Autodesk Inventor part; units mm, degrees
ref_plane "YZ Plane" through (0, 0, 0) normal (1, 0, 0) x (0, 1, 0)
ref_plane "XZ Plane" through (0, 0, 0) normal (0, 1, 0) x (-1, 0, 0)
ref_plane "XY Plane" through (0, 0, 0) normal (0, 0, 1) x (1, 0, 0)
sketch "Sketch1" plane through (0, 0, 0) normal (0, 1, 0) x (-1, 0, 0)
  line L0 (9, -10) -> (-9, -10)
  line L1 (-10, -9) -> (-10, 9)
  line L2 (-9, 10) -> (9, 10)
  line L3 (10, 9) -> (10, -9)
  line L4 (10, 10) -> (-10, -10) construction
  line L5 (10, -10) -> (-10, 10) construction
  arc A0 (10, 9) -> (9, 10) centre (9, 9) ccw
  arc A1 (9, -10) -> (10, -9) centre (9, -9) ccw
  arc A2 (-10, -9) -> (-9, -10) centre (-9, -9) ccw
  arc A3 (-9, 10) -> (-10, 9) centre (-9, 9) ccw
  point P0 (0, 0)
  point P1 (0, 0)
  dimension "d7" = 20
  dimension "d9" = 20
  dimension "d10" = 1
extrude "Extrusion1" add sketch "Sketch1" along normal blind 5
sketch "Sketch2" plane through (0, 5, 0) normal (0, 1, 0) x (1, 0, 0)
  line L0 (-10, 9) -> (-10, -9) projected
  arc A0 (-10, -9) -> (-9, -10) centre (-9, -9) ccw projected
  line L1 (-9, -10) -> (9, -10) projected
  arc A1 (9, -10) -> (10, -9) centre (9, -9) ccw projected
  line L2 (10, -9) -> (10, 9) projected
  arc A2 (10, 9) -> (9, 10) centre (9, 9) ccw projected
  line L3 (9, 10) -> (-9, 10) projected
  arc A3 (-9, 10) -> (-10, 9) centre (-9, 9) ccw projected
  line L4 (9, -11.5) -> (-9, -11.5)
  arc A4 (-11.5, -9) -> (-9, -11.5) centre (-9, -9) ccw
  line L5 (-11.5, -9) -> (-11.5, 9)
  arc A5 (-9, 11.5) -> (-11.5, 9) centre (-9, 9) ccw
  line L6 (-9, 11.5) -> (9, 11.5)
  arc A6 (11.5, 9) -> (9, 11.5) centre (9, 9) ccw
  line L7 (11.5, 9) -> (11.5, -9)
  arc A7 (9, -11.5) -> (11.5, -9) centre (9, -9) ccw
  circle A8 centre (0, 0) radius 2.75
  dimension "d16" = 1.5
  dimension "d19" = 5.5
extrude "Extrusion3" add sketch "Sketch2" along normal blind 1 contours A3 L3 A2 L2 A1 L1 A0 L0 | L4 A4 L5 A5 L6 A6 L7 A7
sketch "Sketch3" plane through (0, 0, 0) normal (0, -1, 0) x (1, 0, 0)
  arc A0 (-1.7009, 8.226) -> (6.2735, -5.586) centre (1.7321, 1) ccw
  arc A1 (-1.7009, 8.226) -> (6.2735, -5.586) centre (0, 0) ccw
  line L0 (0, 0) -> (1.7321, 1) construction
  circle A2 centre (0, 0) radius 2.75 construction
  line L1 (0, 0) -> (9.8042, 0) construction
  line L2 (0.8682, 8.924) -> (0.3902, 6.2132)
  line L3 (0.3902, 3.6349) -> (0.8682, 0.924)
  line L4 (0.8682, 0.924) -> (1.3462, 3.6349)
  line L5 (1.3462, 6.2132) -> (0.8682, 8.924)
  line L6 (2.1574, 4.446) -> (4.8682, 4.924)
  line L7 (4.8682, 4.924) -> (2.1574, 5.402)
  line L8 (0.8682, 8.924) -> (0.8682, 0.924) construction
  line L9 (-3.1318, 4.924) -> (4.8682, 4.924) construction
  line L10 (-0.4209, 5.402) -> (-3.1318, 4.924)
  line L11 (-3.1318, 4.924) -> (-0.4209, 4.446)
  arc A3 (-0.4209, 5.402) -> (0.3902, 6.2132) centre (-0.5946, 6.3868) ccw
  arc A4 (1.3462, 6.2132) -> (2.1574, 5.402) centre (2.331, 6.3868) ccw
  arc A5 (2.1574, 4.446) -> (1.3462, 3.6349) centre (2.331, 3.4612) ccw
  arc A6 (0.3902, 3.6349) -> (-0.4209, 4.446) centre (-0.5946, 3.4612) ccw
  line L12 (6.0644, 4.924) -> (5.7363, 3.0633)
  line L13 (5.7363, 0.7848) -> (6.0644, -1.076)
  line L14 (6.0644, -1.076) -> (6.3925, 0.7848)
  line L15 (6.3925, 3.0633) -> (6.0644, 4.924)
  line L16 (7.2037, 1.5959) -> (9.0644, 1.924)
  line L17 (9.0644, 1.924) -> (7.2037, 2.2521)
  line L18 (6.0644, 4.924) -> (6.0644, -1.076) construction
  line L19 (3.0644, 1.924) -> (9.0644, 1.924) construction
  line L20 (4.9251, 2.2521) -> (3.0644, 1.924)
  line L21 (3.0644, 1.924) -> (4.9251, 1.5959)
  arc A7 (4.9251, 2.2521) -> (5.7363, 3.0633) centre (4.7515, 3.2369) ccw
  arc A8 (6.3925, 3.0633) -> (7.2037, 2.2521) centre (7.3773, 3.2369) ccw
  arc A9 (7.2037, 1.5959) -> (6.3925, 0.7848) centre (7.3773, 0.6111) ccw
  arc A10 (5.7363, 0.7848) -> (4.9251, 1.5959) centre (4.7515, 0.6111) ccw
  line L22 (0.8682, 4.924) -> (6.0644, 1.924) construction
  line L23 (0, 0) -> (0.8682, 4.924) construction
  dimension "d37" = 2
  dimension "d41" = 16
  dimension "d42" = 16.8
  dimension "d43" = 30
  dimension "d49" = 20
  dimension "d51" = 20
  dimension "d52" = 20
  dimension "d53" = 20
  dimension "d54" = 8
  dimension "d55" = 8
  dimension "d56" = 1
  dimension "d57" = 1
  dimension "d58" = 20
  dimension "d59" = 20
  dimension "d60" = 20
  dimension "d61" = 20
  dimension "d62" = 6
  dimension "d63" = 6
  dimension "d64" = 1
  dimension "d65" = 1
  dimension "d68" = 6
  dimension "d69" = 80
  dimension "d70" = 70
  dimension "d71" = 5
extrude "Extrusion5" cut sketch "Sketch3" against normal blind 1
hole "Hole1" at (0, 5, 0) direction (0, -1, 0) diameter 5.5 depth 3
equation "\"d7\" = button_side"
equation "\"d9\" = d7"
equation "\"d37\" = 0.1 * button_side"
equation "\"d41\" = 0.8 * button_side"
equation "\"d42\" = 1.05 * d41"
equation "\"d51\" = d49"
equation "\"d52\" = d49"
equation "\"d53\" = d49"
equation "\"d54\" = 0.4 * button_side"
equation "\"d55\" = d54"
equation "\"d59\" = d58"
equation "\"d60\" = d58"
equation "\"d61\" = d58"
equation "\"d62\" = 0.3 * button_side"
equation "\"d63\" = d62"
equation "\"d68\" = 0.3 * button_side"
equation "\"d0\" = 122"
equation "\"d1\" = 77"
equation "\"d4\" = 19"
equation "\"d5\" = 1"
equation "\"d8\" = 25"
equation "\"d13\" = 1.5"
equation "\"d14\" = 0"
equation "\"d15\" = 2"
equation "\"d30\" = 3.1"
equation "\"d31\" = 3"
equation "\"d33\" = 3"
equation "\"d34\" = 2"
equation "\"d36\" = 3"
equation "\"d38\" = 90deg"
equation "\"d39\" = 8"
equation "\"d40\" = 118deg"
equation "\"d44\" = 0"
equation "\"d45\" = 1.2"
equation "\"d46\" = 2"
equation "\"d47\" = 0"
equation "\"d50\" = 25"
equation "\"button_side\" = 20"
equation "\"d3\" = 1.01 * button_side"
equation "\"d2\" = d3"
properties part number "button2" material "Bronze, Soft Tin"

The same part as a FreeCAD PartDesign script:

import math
import FreeCAD as App
import Part
import Sketcher

V = App.Vector
Q = App.Units.Quantity

doc = App.newDocument("Part")
body = doc.addObject("PartDesign::Body", "Body")

sketch1 = body.newObject("Sketcher::SketchObject", "Sketch")
sketch1.AttachmentSupport = (doc.getObject("XZ_Plane"), [""])
sketch1.MapMode = "FlatFace"
sketch1.addGeometry(Part.LineSegment(V(9, -10, 0), V(-9, -10, 0)), False)
sketch1.addGeometry(Part.ArcOfCircle(Part.Circle(V(-9, -9, 0), V(0, 0, 1), 1), math.radians(180), math.radians(270)), False)
sketch1.addGeometry(Part.LineSegment(V(-10, -9, 0), V(-10, 9, 0)), False)
sketch1.addGeometry(Part.ArcOfCircle(Part.Circle(V(-9, 9, 0), V(0, 0, 1), 1), math.radians(90), math.radians(180)), False)
sketch1.addGeometry(Part.LineSegment(V(-9, 10, 0), V(9, 10, 0)), False)
sketch1.addGeometry(Part.ArcOfCircle(Part.Circle(V(9, 9, 0), V(0, 0, 1), 1), math.radians(0), math.radians(90)), False)
sketch1.addGeometry(Part.LineSegment(V(10, 9, 0), V(10, -9, 0)), False)
sketch1.addGeometry(Part.ArcOfCircle(Part.Circle(V(9, -9, 0), V(0, 0, 1), 1), math.radians(-90), math.radians(0)), False)
sketch1.addConstraint(Sketcher.Constraint("Tangent", 0, 2, 1, 2))
sketch1.addConstraint(Sketcher.Constraint("Tangent", 1, 1, 2, 1))
sketch1.addConstraint(Sketcher.Constraint("Tangent", 2, 2, 3, 2))
sketch1.addConstraint(Sketcher.Constraint("Tangent", 3, 1, 4, 1))
sketch1.addConstraint(Sketcher.Constraint("Tangent", 4, 2, 5, 2))
sketch1.addConstraint(Sketcher.Constraint("Tangent", 5, 1, 6, 1))
sketch1.addConstraint(Sketcher.Constraint("Tangent", 6, 2, 7, 2))
sketch1.addConstraint(Sketcher.Constraint("Tangent", 7, 1, 0, 1))
sketch1.addConstraint(Sketcher.Constraint("Horizontal", 0))
sketch1.addConstraint(Sketcher.Constraint("Vertical", 2))
sketch1.addConstraint(Sketcher.Constraint("Horizontal", 4))
sketch1.addConstraint(Sketcher.Constraint("Vertical", 6))
sketch1.addConstraint(Sketcher.Constraint("Equal", 1, 3))
sketch1.addConstraint(Sketcher.Constraint("Equal", 3, 5))
sketch1.addConstraint(Sketcher.Constraint("Equal", 5, 7))
sketch1.addConstraint(Sketcher.Constraint("Symmetric", 1, 3, 5, 3, -1, 1))
sketch1.addConstraint(Sketcher.Constraint("Equal", 4, 2))
sketch1.addConstraint(Sketcher.Constraint("Radius", 1, 1.0))
sketch1.addConstraint(Sketcher.Constraint("DistanceX", 0, 2, 0, 1, 18.0))
pad1 = body.newObject("PartDesign::Pad", "Pad")
pad1.Profile = sketch1
pad1.Length = 5
pad1.Reversed = True

sketch2 = body.newObject("Sketcher::SketchObject", "Sketch001")
sketch2.AttachmentSupport = (doc.getObject("XZ_Plane"), [""])
sketch2.MapMode = "FlatFace"
sketch2.AttachmentOffset = App.Placement(V(0, 0, -5), App.Rotation())
sketch2.addGeometry(Part.LineSegment(V(-9, 11.5, 0), V(9, 11.5, 0)), False)
sketch2.addGeometry(Part.ArcOfCircle(Part.Circle(V(9, 9, 0), V(0, 0, 1), 2.5), math.radians(0), math.radians(90)), False)
sketch2.addGeometry(Part.LineSegment(V(11.5, 9, 0), V(11.5, -9, 0)), False)
sketch2.addGeometry(Part.ArcOfCircle(Part.Circle(V(9, -9, 0), V(0, 0, 1), 2.5), math.radians(-90), math.radians(0)), False)
sketch2.addGeometry(Part.LineSegment(V(9, -11.5, 0), V(-9, -11.5, 0)), False)
sketch2.addGeometry(Part.ArcOfCircle(Part.Circle(V(-9, -9, 0), V(0, 0, 1), 2.5), math.radians(180), math.radians(270)), False)
sketch2.addGeometry(Part.LineSegment(V(-11.5, -9, 0), V(-11.5, 9, 0)), False)
sketch2.addGeometry(Part.ArcOfCircle(Part.Circle(V(-9, 9, 0), V(0, 0, 1), 2.5), math.radians(90), math.radians(180)), False)
sketch2.addGeometry(Part.Circle(V(0, 0, 0), V(0, 0, 1), 2.75), False)
sketch2.addConstraint(Sketcher.Constraint("Tangent", 0, 2, 1, 2))
sketch2.addConstraint(Sketcher.Constraint("Tangent", 1, 1, 2, 1))
sketch2.addConstraint(Sketcher.Constraint("Tangent", 2, 2, 3, 2))
sketch2.addConstraint(Sketcher.Constraint("Tangent", 3, 1, 4, 1))
sketch2.addConstraint(Sketcher.Constraint("Tangent", 4, 2, 5, 2))
sketch2.addConstraint(Sketcher.Constraint("Tangent", 5, 1, 6, 1))
sketch2.addConstraint(Sketcher.Constraint("Tangent", 6, 2, 7, 2))
sketch2.addConstraint(Sketcher.Constraint("Tangent", 7, 1, 0, 1))
sketch2.addConstraint(Sketcher.Constraint("Horizontal", 0))
sketch2.addConstraint(Sketcher.Constraint("Vertical", 2))
sketch2.addConstraint(Sketcher.Constraint("Horizontal", 4))
sketch2.addConstraint(Sketcher.Constraint("Vertical", 6))
sketch2.addConstraint(Sketcher.Constraint("Coincident", 8, 3, -1, 1))
sketch2.addConstraint(Sketcher.Constraint("Equal", 1, 3))
sketch2.addConstraint(Sketcher.Constraint("Equal", 3, 5))
sketch2.addConstraint(Sketcher.Constraint("Equal", 5, 7))
sketch2.addConstraint(Sketcher.Constraint("Symmetric", 1, 3, 5, 3, -1, 1))
sketch2.addConstraint(Sketcher.Constraint("Equal", 4, 2))
sketch2.addConstraint(Sketcher.Constraint("Diameter", 8, 5.5))
sketch2.addConstraint(Sketcher.Constraint("Radius", 1, 2.5))
sketch2.addConstraint(Sketcher.Constraint("DistanceX", 0, 1, 0, 2, 18.0))
pad2 = body.newObject("PartDesign::Pad", "Pad001")
pad2.Profile = sketch2
pad2.Length = 1
pad2.Reversed = True

sketch3 = body.newObject("Sketcher::SketchObject", "Sketch002")
sketch3.AttachmentSupport = (doc.getObject("XZ_Plane"), [""])
sketch3.MapMode = "FlatFace"
sketch3.addGeometry(Part.ArcOfCircle(Part.Circle(V(1.7321, 1, 0), V(0, 0, 1), 8.000035), math.radians(115.411923), math.radians(304.588345)), False)
sketch3.addGeometry(Part.ArcOfCircle(Part.Circle(V(0, 0, 0), V(0, 0, 1), 8.400008), math.radians(101.682482), math.radians(318.317746)), False)
sketch3.addGeometry(Part.LineSegment(V(1.3462, 6.2132, 0), V(0.8682, 8.924, 0)), False)
sketch3.addGeometry(Part.LineSegment(V(0.8682, 8.924, 0), V(0.3902, 6.2132, 0)), False)
sketch3.addGeometry(Part.ArcOfCircle(Part.Circle(V(-0.5946, 6.3868, 0), V(0, 0, 1), 1.000001), math.radians(-79.996999), math.radians(-9.997359)), False)
sketch3.addGeometry(Part.LineSegment(V(-0.4209, 5.402, 0), V(-3.1318, 4.924, 0)), False)
sketch3.addGeometry(Part.LineSegment(V(-3.1318, 4.924, 0), V(-0.4209, 4.446, 0)), False)
sketch3.addGeometry(Part.ArcOfCircle(Part.Circle(V(-0.5946, 3.4612, 0), V(0, 0, 1), 1.000001), math.radians(10.003001), math.radians(79.996999)), False)
sketch3.addGeometry(Part.LineSegment(V(0.3902, 3.6349, 0), V(0.8682, 0.924, 0)), False)
sketch3.addGeometry(Part.LineSegment(V(0.8682, 0.924, 0), V(1.3462, 3.6349, 0)), False)
sketch3.addGeometry(Part.ArcOfCircle(Part.Circle(V(2.331, 3.4612, 0), V(0, 0, 1), 0.999984), math.radians(99.997359), math.radians(169.996999)), False)
sketch3.addGeometry(Part.LineSegment(V(2.1574, 4.446, 0), V(4.8682, 4.924, 0)), False)
sketch3.addGeometry(Part.LineSegment(V(4.8682, 4.924, 0), V(2.1574, 5.402, 0)), False)
sketch3.addGeometry(Part.ArcOfCircle(Part.Circle(V(2.331, 6.3868, 0), V(0, 0, 1), 0.999984), math.radians(-170.002641), math.radians(-99.997359)), False)
sketch3.addGeometry(Part.LineSegment(V(6.3925, 3.0633, 0), V(6.0644, 4.924, 0)), False)
sketch3.addGeometry(Part.LineSegment(V(6.0644, 4.924, 0), V(5.7363, 3.0633, 0)), False)
sketch3.addGeometry(Part.ArcOfCircle(Part.Circle(V(4.7515, 3.2369, 0), V(0, 0, 1), 0.999984), math.radians(-80.002641), math.radians(-9.997359)), False)
sketch3.addGeometry(Part.LineSegment(V(4.9251, 2.2521, 0), V(3.0644, 1.924, 0)), False)
sketch3.addGeometry(Part.LineSegment(V(3.0644, 1.924, 0), V(4.9251, 1.5959, 0)), False)
sketch3.addGeometry(Part.ArcOfCircle(Part.Circle(V(4.7515, 0.6111, 0), V(0, 0, 1), 1.000001), math.radians(10.003001), math.radians(80.002641)), False)
sketch3.addGeometry(Part.LineSegment(V(5.7363, 0.7848, 0), V(6.0644, -1.076, 0)), False)
sketch3.addGeometry(Part.LineSegment(V(6.0644, -1.076, 0), V(6.3925, 0.7848, 0)), False)
sketch3.addGeometry(Part.ArcOfCircle(Part.Circle(V(7.3773, 0.6111, 0), V(0, 0, 1), 0.999984), math.radians(99.997359), math.radians(169.996999)), False)
sketch3.addGeometry(Part.LineSegment(V(7.2037, 1.5959, 0), V(9.0644, 1.924, 0)), False)
sketch3.addGeometry(Part.LineSegment(V(9.0644, 1.924, 0), V(7.2037, 2.2521, 0)), False)
sketch3.addGeometry(Part.ArcOfCircle(Part.Circle(V(7.3773, 3.2369, 0), V(0, 0, 1), 0.999984), math.radians(-170.002641), math.radians(-99.997359)), False)
sketch3.addConstraint(Sketcher.Constraint("Coincident", 0, 1, 1, 1))
sketch3.addConstraint(Sketcher.Constraint("Coincident", 1, 2, 0, 2))
sketch3.addConstraint(Sketcher.Constraint("Coincident", 2, 2, 3, 1))
sketch3.addConstraint(Sketcher.Constraint("Tangent", 3, 2, 4, 2))
sketch3.addConstraint(Sketcher.Constraint("Tangent", 4, 1, 5, 1))
sketch3.addConstraint(Sketcher.Constraint("Coincident", 5, 2, 6, 1))
sketch3.addConstraint(Sketcher.Constraint("Tangent", 6, 2, 7, 2))
sketch3.addConstraint(Sketcher.Constraint("Tangent", 7, 1, 8, 1))
sketch3.addConstraint(Sketcher.Constraint("Coincident", 8, 2, 9, 1))
sketch3.addConstraint(Sketcher.Constraint("Tangent", 9, 2, 10, 2))
sketch3.addConstraint(Sketcher.Constraint("Tangent", 10, 1, 11, 1))
sketch3.addConstraint(Sketcher.Constraint("Coincident", 11, 2, 12, 1))
sketch3.addConstraint(Sketcher.Constraint("Tangent", 12, 2, 13, 2))
sketch3.addConstraint(Sketcher.Constraint("Tangent", 13, 1, 2, 1))
sketch3.addConstraint(Sketcher.Constraint("Coincident", 14, 2, 15, 1))
sketch3.addConstraint(Sketcher.Constraint("Tangent", 15, 2, 16, 2))
sketch3.addConstraint(Sketcher.Constraint("Tangent", 16, 1, 17, 1))
sketch3.addConstraint(Sketcher.Constraint("Coincident", 17, 2, 18, 1))
sketch3.addConstraint(Sketcher.Constraint("Tangent", 18, 2, 19, 2))
sketch3.addConstraint(Sketcher.Constraint("Tangent", 19, 1, 20, 1))
sketch3.addConstraint(Sketcher.Constraint("Coincident", 20, 2, 21, 1))
sketch3.addConstraint(Sketcher.Constraint("Tangent", 21, 2, 22, 2))
sketch3.addConstraint(Sketcher.Constraint("Tangent", 22, 1, 23, 1))
sketch3.addConstraint(Sketcher.Constraint("Coincident", 23, 2, 24, 1))
sketch3.addConstraint(Sketcher.Constraint("Tangent", 24, 2, 25, 2))
sketch3.addConstraint(Sketcher.Constraint("Tangent", 25, 1, 14, 1))
sketch3.addConstraint(Sketcher.Constraint("Coincident", 1, 3, -1, 1))
sketch3.addConstraint(Sketcher.Constraint("Equal", 4, 7))
sketch3.addConstraint(Sketcher.Constraint("Equal", 7, 10))
sketch3.addConstraint(Sketcher.Constraint("Equal", 10, 13))
sketch3.addConstraint(Sketcher.Constraint("Equal", 13, 16))
sketch3.addConstraint(Sketcher.Constraint("Equal", 16, 19))
sketch3.addConstraint(Sketcher.Constraint("Equal", 19, 22))
sketch3.addConstraint(Sketcher.Constraint("Equal", 22, 25))
sketch3.addConstraint(Sketcher.Constraint("Perpendicular", 2, 5))
sketch3.addConstraint(Sketcher.Constraint("Perpendicular", 3, 6))
sketch3.addConstraint(Sketcher.Constraint("Perpendicular", 5, 8))
sketch3.addConstraint(Sketcher.Constraint("Perpendicular", 6, 9))
sketch3.addConstraint(Sketcher.Constraint("Perpendicular", 8, 11))
sketch3.addConstraint(Sketcher.Constraint("Perpendicular", 9, 12))
sketch3.addConstraint(Sketcher.Constraint("Perpendicular", 11, 14))
sketch3.addConstraint(Sketcher.Constraint("Perpendicular", 12, 15))
sketch3.addConstraint(Sketcher.Constraint("Perpendicular", 14, 17))
sketch3.addConstraint(Sketcher.Constraint("Perpendicular", 15, 18))
sketch3.addConstraint(Sketcher.Constraint("Perpendicular", 17, 20))
sketch3.addConstraint(Sketcher.Constraint("Perpendicular", 18, 21))
sketch3.addConstraint(Sketcher.Constraint("Perpendicular", 20, 23))
sketch3.addConstraint(Sketcher.Constraint("Perpendicular", 21, 24))
sketch3.addConstraint(Sketcher.Constraint("Horizontal", 7, 3, 10, 3))
sketch3.addConstraint(Sketcher.Constraint("Horizontal", 4, 3, 13, 3))
sketch3.addConstraint(Sketcher.Constraint("Horizontal", 19, 3, 22, 3))
sketch3.addConstraint(Sketcher.Constraint("Horizontal", 16, 3, 25, 3))
sketch3.addConstraint(Sketcher.Constraint("Horizontal", 7, 1, 9, 2))
sketch3.addConstraint(Sketcher.Constraint("Horizontal", 5, 2, 11, 2))
sketch3.addConstraint(Sketcher.Constraint("Horizontal", 11, 2, 14, 2))
sketch3.addConstraint(Sketcher.Constraint("Horizontal", 17, 2, 23, 2))
sketch3.addConstraint(Sketcher.Constraint("Vertical", 4, 3, 7, 3))
sketch3.addConstraint(Sketcher.Constraint("Vertical", 16, 3, 19, 3))
sketch3.addConstraint(Sketcher.Constraint("Equal", 3, 5))
sketch3.addConstraint(Sketcher.Constraint("Equal", 15, 17))
sketch3.addConstraint(Sketcher.Constraint("Radius", 0, 8.0))
sketch3.addConstraint(Sketcher.Constraint("Radius", 4, 1.0))
sketch3.addConstraint(Sketcher.Constraint("Radius", 1, 8.4))
sketch3.addConstraint(Sketcher.Constraint("Angle", 8, Q("-80 deg")))
sketch3.addConstraint(Sketcher.Constraint("DistanceY", -1, 1, 0, 3, 1.0))
sketch3.addConstraint(Sketcher.Constraint("DistanceY", 16, 3, 13, 3, 3.15))
sketch3.addConstraint(Sketcher.Constraint("DistanceY", 19, 3, 10, 3, 2.85))
sketch3.addConstraint(Sketcher.Constraint("DistanceX", 0, 1, 4, 1, 1.28))
sketch3.addConstraint(Sketcher.Constraint("DistanceX", -1, 1, 0, 3, 1.732))
sketch3.addConstraint(Sketcher.Constraint("DistanceY", -1, 1, 16, 3, 3.237))
sketch3.addConstraint(Sketcher.Constraint("DistanceX", -1, 1, 16, 1, 4.925))
pocket1 = body.newObject("PartDesign::Pocket", "Pocket")
pocket1.Profile = sketch3
pocket1.Length = 1

sketch4 = body.newObject("Sketcher::SketchObject", "Sketch003")
sketch4.AttachmentSupport = (doc.getObject("XZ_Plane"), [""])
sketch4.MapMode = "FlatFace"
sketch4.AttachmentOffset = App.Placement(V(0, 0, -5), App.Rotation())
sketch4.addGeometry(Part.Circle(V(0, 0, 0), V(0, 0, 1), 2.75), False)
sketch4.addConstraint(Sketcher.Constraint("Coincident", 0, 3, -1, 1))
sketch4.addConstraint(Sketcher.Constraint("Diameter", 0, 5.5))
doc.recompute()
hole = body.newObject("PartDesign::Hole", "Hole")
hole.Profile = sketch4
hole.ThreadType = "None"
hole.Diameter = 5.5
hole.DepthType = "Dimension"
hole.Depth = 3
hole.DrillPoint = "Flat"
hole.Reversed = True

doc.recompute()
